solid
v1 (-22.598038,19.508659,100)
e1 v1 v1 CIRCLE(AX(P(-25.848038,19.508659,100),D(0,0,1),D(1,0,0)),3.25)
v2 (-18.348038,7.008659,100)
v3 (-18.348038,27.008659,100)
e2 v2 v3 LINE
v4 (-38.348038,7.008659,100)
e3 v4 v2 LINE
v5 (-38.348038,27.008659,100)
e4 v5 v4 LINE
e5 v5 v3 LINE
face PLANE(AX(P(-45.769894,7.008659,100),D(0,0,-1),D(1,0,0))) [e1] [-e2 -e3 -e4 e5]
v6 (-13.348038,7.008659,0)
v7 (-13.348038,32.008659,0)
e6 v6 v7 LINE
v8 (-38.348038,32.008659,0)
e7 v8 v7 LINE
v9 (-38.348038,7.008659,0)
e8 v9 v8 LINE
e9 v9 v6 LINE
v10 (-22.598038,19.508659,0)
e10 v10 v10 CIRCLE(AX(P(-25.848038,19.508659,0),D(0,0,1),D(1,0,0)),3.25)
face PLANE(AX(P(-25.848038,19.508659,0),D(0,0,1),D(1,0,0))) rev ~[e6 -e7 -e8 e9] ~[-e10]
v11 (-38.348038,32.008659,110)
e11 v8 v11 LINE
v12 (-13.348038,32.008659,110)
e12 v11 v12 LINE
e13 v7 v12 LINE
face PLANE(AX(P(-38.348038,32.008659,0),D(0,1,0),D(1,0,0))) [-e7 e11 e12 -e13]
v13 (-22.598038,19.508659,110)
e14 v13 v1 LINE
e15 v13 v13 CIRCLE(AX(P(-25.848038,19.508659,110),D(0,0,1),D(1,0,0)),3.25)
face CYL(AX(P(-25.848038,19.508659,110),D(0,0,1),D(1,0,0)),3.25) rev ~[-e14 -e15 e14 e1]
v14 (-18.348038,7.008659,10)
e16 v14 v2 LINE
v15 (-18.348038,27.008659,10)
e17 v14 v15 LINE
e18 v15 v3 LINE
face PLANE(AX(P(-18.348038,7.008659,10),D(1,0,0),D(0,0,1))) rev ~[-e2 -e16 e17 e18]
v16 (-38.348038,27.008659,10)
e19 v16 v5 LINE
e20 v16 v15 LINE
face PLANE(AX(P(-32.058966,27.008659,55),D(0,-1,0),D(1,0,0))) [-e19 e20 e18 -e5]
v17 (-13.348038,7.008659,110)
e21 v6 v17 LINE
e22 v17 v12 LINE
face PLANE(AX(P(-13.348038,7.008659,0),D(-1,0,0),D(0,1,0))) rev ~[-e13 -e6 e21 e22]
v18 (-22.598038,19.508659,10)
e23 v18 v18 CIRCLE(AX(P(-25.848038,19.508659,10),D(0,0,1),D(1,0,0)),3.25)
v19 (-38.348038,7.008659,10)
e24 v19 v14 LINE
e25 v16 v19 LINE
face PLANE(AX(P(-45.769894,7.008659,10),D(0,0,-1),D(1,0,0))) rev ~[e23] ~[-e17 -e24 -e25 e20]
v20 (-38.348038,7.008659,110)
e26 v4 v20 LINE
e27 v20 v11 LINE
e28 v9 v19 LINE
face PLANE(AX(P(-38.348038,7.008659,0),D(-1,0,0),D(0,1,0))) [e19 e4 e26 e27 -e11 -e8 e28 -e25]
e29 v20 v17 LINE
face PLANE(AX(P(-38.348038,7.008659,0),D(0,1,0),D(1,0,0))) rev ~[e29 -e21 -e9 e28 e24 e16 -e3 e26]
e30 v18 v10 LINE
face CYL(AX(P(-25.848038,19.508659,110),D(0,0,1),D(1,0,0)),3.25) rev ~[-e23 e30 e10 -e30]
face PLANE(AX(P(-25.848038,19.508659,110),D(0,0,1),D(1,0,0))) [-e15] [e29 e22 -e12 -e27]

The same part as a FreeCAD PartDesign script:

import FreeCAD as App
import Part
import Sketcher
Q = App.Units.Quantity

doc = App.newDocument("Part")
body = doc.addObject("PartDesign::Body", "Body")

# Sketch on XY plane
sketch1 = doc.addObject("Sketcher::SketchObject", "Sketch")
body.addObject(sketch1)
sketch1.AttachmentSupport = (doc.XY_Plane, [""])
sketch1.MapMode = "FlatFace"
sketch1.addGeometry([
    Part.LineSegment(App.Vector(-38.348038, 32.008659, 0), App.Vector(-38.348038, 7.008659, 0)),
    Part.LineSegment(App.Vector(-38.348038, 7.008659, 0), App.Vector(-13.348038, 7.008659, 0)),
    Part.LineSegment(App.Vector(-13.348038, 7.008659, 0), App.Vector(-13.348038, 32.008659, 0)),
    Part.LineSegment(App.Vector(-13.348038, 32.008659, 0), App.Vector(-38.348038, 32.008659, 0)),
], False)
sketch1.addConstraint([
    Sketcher.Constraint("Coincident", 0, 2, 1, 1),
    Sketcher.Constraint("Coincident", 1, 2, 2, 1),
    Sketcher.Constraint("Coincident", 2, 2, 3, 1),
    Sketcher.Constraint("Coincident", 3, 2, 0, 1),
    Sketcher.Constraint("Vertical", 0),
    Sketcher.Constraint("Horizontal", 1),
    Sketcher.Constraint("Vertical", 2),
    Sketcher.Constraint("Horizontal", 3),
    Sketcher.Constraint("Equal", 3, 0),
    Sketcher.Constraint("DistanceX", 1, 1, 1, 2, Q("25 mm")),
    Sketcher.Constraint("DistanceX", 0, 2, -1, 1, Q("38.348038 mm")),
    Sketcher.Constraint("DistanceY", -1, 1, 0, 2, Q("7.008659 mm")),
])
pad1 = doc.addObject("PartDesign::Pad", "Pad")
body.addObject(pad1)
pad1.Profile = sketch1
pad1.Length = 110

# Sketch on XZ plane
sketch2 = doc.addObject("Sketcher::SketchObject", "Sketch001")
body.addObject(sketch2)
sketch2.AttachmentSupport = (doc.XZ_Plane, [""])
sketch2.MapMode = "FlatFace"
sketch2.AttachmentOffset = App.Placement(App.Vector(0, 0, -7.008659), App.Rotation())
sketch2.addGeometry([
    Part.LineSegment(App.Vector(-45.769894, 100, 0), App.Vector(-45.769894, 10, 0)),
    Part.LineSegment(App.Vector(-45.769894, 10, 0), App.Vector(-18.348038, 10, 0)),
    Part.LineSegment(App.Vector(-18.348038, 10, 0), App.Vector(-18.348038, 100, 0)),
    Part.LineSegment(App.Vector(-18.348038, 100, 0), App.Vector(-45.769894, 100, 0)),
], False)
sketch2.addConstraint([
    Sketcher.Constraint("Coincident", 0, 2, 1, 1),
    Sketcher.Constraint("Coincident", 1, 2, 2, 1),
    Sketcher.Constraint("Coincident", 2, 2, 3, 1),
    Sketcher.Constraint("Coincident", 3, 2, 0, 1),
    Sketcher.Constraint("Vertical", 0),
    Sketcher.Constraint("Horizontal", 1),
    Sketcher.Constraint("Vertical", 2),
    Sketcher.Constraint("Horizontal", 3),
    Sketcher.Constraint("DistanceY", 0, 2, 0, 1, Q("90 mm")),
    Sketcher.Constraint("DistanceY", -1, 1, 0, 2, Q("10 mm")),
    Sketcher.Constraint("DistanceX", 1, 1, 1, 2, Q("27.421856 mm")),
    Sketcher.Constraint("DistanceX", 0, 2, -1, 1, Q("45.769894 mm")),
])
pocket1 = doc.addObject("PartDesign::Pocket", "Pocket")
body.addObject(pocket1)
pocket1.Profile = sketch2
pocket1.Length = 20

# Sketch on XY plane
sketch3 = doc.addObject("Sketcher::SketchObject", "Sketch002")
body.addObject(sketch3)
sketch3.AttachmentSupport = (doc.XY_Plane, [""])
sketch3.MapMode = "FlatFace"
sketch3.AttachmentOffset = App.Placement(App.Vector(0, 0, 110), App.Rotation())
sketch3.addGeometry(Part.Circle(App.Vector(-25.848038, 19.508659, 0), App.Vector(0, 0, 1), 3.25), False)
sketch3.addConstraint([
    Sketcher.Constraint("Diameter", 0, Q("6.5 mm")),
    Sketcher.Constraint("DistanceY", -1, 1, 0, 3, Q("19.508659 mm")),
    Sketcher.Constraint("DistanceX", 0, 3, -1, 1, Q("25.848038 mm")),
])
pocket2 = doc.addObject("PartDesign::Pocket", "Pocket001")
body.addObject(pocket2)
pocket2.Profile = sketch3
pocket2.Type = "ThroughAll"

doc.recompute()
